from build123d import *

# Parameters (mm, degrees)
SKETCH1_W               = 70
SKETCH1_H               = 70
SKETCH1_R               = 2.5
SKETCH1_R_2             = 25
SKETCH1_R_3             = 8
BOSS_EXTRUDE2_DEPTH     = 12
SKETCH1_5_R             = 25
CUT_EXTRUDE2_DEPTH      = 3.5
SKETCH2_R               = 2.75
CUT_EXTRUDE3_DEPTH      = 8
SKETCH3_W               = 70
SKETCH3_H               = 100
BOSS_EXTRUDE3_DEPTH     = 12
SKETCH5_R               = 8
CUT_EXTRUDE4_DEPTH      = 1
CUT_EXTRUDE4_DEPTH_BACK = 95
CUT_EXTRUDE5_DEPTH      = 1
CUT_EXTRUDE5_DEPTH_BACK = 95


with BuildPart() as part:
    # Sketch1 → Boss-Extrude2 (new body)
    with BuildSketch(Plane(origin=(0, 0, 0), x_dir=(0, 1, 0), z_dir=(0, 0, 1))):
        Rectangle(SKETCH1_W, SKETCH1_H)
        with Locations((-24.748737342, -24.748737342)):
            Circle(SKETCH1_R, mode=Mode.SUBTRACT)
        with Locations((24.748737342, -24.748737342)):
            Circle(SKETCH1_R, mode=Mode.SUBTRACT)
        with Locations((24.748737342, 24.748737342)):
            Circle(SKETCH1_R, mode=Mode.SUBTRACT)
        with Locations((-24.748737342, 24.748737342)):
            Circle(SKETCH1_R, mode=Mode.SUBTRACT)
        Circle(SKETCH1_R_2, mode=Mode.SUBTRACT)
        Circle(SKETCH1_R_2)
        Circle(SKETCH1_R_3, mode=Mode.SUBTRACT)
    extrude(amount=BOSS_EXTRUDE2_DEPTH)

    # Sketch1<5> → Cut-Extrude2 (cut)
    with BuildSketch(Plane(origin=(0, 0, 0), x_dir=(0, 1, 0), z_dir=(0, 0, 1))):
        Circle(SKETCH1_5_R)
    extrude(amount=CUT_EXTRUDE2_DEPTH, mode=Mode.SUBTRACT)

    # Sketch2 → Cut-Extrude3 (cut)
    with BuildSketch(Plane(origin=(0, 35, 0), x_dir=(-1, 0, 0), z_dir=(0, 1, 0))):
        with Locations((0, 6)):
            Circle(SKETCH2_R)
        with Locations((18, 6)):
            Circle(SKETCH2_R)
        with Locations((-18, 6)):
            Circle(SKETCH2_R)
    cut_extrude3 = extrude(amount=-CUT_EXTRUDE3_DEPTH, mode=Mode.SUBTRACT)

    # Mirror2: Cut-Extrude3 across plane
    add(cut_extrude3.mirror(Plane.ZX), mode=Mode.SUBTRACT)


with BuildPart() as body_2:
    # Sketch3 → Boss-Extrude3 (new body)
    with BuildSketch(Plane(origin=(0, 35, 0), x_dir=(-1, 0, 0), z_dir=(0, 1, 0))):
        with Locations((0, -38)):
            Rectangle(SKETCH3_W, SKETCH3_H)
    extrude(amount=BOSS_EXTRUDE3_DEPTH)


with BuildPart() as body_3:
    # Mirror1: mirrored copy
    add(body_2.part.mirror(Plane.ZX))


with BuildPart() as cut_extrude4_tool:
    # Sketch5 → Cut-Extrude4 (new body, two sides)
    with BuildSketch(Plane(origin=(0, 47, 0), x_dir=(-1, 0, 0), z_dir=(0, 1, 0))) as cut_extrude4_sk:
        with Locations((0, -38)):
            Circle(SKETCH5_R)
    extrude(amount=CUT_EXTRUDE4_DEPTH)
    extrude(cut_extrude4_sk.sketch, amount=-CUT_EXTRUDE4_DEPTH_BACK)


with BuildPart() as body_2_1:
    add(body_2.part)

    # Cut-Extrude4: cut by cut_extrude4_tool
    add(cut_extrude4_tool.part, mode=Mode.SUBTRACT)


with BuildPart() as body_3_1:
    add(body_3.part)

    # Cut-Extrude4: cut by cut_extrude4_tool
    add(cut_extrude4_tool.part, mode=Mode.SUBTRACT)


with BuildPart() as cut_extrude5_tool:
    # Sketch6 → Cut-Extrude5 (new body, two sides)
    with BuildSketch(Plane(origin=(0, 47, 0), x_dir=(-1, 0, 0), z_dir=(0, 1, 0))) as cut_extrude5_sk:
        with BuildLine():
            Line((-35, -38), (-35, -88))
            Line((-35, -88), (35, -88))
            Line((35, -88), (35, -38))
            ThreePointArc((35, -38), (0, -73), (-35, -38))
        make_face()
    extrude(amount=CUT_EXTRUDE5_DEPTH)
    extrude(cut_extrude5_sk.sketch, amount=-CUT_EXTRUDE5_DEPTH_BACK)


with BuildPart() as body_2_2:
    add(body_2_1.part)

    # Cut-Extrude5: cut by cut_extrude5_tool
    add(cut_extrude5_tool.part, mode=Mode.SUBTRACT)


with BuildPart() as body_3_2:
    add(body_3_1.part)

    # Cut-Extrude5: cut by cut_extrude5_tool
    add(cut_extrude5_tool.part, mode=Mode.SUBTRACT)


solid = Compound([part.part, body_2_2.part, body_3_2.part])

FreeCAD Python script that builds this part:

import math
import FreeCAD as App
import Part
import Sketcher

V = App.Vector

doc = App.newDocument("Part")
body = doc.addObject("PartDesign::Body", "Body")

sketch1 = body.newObject("Sketcher::SketchObject", "Sketch")
sketch1.AttachmentSupport = (doc.getObject("XY_Plane"), [""])
sketch1.MapMode = "FlatFace"
sketch1.addGeometry([
    Part.LineSegment(V(-35, -35, 0), V(35, -35, 0)),
    Part.LineSegment(V(35, -35, 0), V(35, 35, 0)),
    Part.LineSegment(V(35, 35, 0), V(-35, 35, 0)),
    Part.LineSegment(V(-35, 35, 0), V(-35, -35, 0)),
    Part.Circle(V(24.7, -24.7, 0), V(0, 0, 1), 2.5),
    Part.Circle(V(24.7, 24.7, 0), V(0, 0, 1), 2.5),
    Part.Circle(V(-24.7, -24.7, 0), V(0, 0, 1), 2.5),
    Part.Circle(V(0, 0, 0), V(0, 0, 1), 8),
    Part.Circle(V(-24.7, 24.7, 0), V(0, 0, 1), 2.5),
], False)
sketch1.addConstraint([
    Sketcher.Constraint("Coincident", 0, 2, 1, 1),
    Sketcher.Constraint("Coincident", 1, 2, 2, 1),
    Sketcher.Constraint("Coincident", 2, 2, 3, 1),
    Sketcher.Constraint("Coincident", 3, 2, 0, 1),
    Sketcher.Constraint("Horizontal", 0),
    Sketcher.Constraint("Vertical", 1),
    Sketcher.Constraint("Horizontal", 2),
    Sketcher.Constraint("Vertical", 3),
    Sketcher.Constraint("Coincident", 7, 3, -1, 1),
    Sketcher.Constraint("Equal", 4, 5),
    Sketcher.Constraint("Equal", 5, 6),
    Sketcher.Constraint("Equal", 6, 8),
    Sketcher.Constraint("Symmetric", 5, 3, 6, 3, -1, 1),
    Sketcher.Constraint("Symmetric", 4, 3, 8, 3, -1, 1),
    Sketcher.Constraint("Symmetric", 0, 2, 2, 2, -1, 1),
    Sketcher.Constraint("Symmetric", 4, 3, 6, 3, -2),
    Sketcher.Constraint("Equal", 2, 1),
    Sketcher.Constraint("Diameter", 4, 5.0),
    Sketcher.Constraint("Diameter", 7, 16.0),
    Sketcher.Constraint("DistanceX", 0, 1, 0, 2, 70.0),
    Sketcher.Constraint("DistanceX", -1, 1, 4, 3, 24.748737),
    Sketcher.Constraint("DistanceY", 4, 3, -1, 1, 24.748737),
])
pad1 = body.newObject("PartDesign::Pad", "Pad")
pad1.Profile = sketch1
pad1.Length = 12

sketch2 = body.newObject("Sketcher::SketchObject", "Sketch001")
sketch2.AttachmentSupport = (doc.getObject("XY_Plane"), [""])
sketch2.MapMode = "FlatFace"
sketch2.addGeometry(Part.Circle(V(0, 0, 0), V(0, 0, 1), 25), False)
sketch2.addConstraint([
    Sketcher.Constraint("Coincident", 0, 3, -1, 1),
    Sketcher.Constraint("Diameter", 0, 50.0),
])
pocket1 = body.newObject("PartDesign::Pocket", "Pocket")
pocket1.Profile = sketch2
pocket1.Length = 3.5
pocket1.Reversed = True

sketch3 = body.newObject("Sketcher::SketchObject", "Sketch002")
sketch3.AttachmentSupport = (doc.getObject("XZ_Plane"), [""])
sketch3.MapMode = "FlatFace"
sketch3.AttachmentOffset = App.Placement(V(0, 0, -35), App.Rotation())
sketch3.addGeometry([
    Part.Circle(V(0, 6, 0), V(0, 0, 1), 2.8),
    Part.Circle(V(-18, 6, 0), V(0, 0, 1), 2.8),
    Part.Circle(V(18, 6, 0), V(0, 0, 1), 2.8),
], False)
sketch3.addConstraint([
    Sketcher.Constraint("Equal", 0, 1),
    Sketcher.Constraint("Equal", 1, 2),
    Sketcher.Constraint("Symmetric", 1, 3, 2, 3, -2),
    Sketcher.Constraint("PointOnObject", 0, 3, -2),
    Sketcher.Constraint("Horizontal", 0, 3, 1, 3),
    Sketcher.Constraint("Diameter", 0, 5.5),
    Sketcher.Constraint("DistanceY", -1, 1, 0, 3, 6.0),
    Sketcher.Constraint("DistanceX", 1, 3, -1, 1, 18.0),
])
pocket2 = body.newObject("PartDesign::Pocket", "Pocket001")
pocket2.Profile = sketch3
pocket2.Length = 8
pocket2.Reversed = True
doc.recompute()

mirrored = body.newObject("PartDesign::Mirrored", "Mirrored")
mirrored.Originals = [pocket2]
mirrored.MirrorPlane = (doc.getObject("XZ_Plane"), [""])
body.Tip = mirrored
body2 = doc.addObject("PartDesign::Body", "Body001")

sketch4 = body2.newObject("Sketcher::SketchObject", "Sketch003")
sketch4.AttachmentSupport = (doc.getObject("XZ_Plane001"), [""])
sketch4.MapMode = "FlatFace"
sketch4.AttachmentOffset = App.Placement(V(0, 0, -35), App.Rotation())
sketch4.addGeometry([
    Part.LineSegment(V(35, 12, 0), V(35, -88, 0)),
    Part.LineSegment(V(35, -88, 0), V(-35, -88, 0)),
    Part.LineSegment(V(-35, -88, 0), V(-35, 12, 0)),
    Part.LineSegment(V(-35, 12, 0), V(35, 12, 0)),
], False)
sketch4.addConstraint([
    Sketcher.Constraint("Coincident", 0, 2, 1, 1),
    Sketcher.Constraint("Coincident", 1, 2, 2, 1),
    Sketcher.Constraint("Coincident", 2, 2, 3, 1),
    Sketcher.Constraint("Coincident", 3, 2, 0, 1),
    Sketcher.Constraint("Vertical", 0),
    Sketcher.Constraint("Horizontal", 1),
    Sketcher.Constraint("Vertical", 2),
    Sketcher.Constraint("Horizontal", 3),
    Sketcher.Constraint("DistanceX", 1, 2, 1, 1, 70.0),
    Sketcher.Constraint("DistanceY", 0, 2, 0, 1, 100.0),
    Sketcher.Constraint("DistanceX", -1, 1, 0, 2, 35.0),
    Sketcher.Constraint("DistanceY", 0, 2, -1, 1, 88.0),
])
pad2 = body2.newObject("PartDesign::Pad", "Pad001")
pad2.Profile = sketch4
pad2.Length = 12
pad2.Reversed = True
body3 = doc.addObject("PartDesign::Body", "Body002")
doc.recompute()

mirroring = doc.addObject("Part::Mirroring", "Mirroring")
mirroring.Source = body2
mirroring.Base = V(0, 0, 0)
mirroring.Normal = V(0, 1, 0)
body3.BaseFeature = mirroring
doc.recompute()
body4 = doc.addObject("PartDesign::Body", "Body003")

sketch5 = body4.newObject("Sketcher::SketchObject", "Sketch004")
sketch5.AttachmentSupport = (doc.getObject("XZ_Plane003"), [""])
sketch5.MapMode = "FlatFace"
sketch5.AttachmentOffset = App.Placement(V(0, 0, -47), App.Rotation())
sketch5.addGeometry(Part.Circle(V(0, -38, 0), V(0, 0, 1), 8), False)
sketch5.addConstraint([
    Sketcher.Constraint("PointOnObject", 0, 3, -2),
    Sketcher.Constraint("Diameter", 0, 16.0),
    Sketcher.Constraint("DistanceY", 0, 3, -1, 1, 38.0),
])
pad3 = body4.newObject("PartDesign::Pad", "Pad002")
pad3.Profile = sketch5
pad3.Type = "TwoLengths"
pad3.Length = 1
pad3.Length2 = 95
pad3.Reversed = True
doc.recompute()

body5 = doc.addObject("PartDesign::Body", "Body004")
body5.BaseFeature = body4
boolean = body2.newObject("PartDesign::Boolean", "Boolean")
boolean.Type = "Cut"
boolean.addObjects([body5])
doc.recompute()

boolean2 = body3.newObject("PartDesign::Boolean", "Boolean001")
boolean2.Type = "Cut"
boolean2.addObjects([body4])
body6 = doc.addObject("PartDesign::Body", "Body005")

sketch6 = body6.newObject("Sketcher::SketchObject", "Sketch005")
sketch6.AttachmentSupport = (doc.getObject("XZ_Plane005"), [""])
sketch6.MapMode = "FlatFace"
sketch6.AttachmentOffset = App.Placement(V(0, 0, -47), App.Rotation())
sketch6.addGeometry([
    Part.LineSegment(V(35, -38, 0), V(35, -88, 0)),
    Part.LineSegment(V(35, -88, 0), V(-35, -88, 0)),
    Part.LineSegment(V(-35, -88, 0), V(-35, -38, 0)),
    Part.ArcOfCircle(Part.Circle(V(0, -38, 0), V(0, 0, 1), 35), math.radians(180), math.radians(360)),
], False)
sketch6.addConstraint([
    Sketcher.Constraint("Coincident", 0, 2, 1, 1),
    Sketcher.Constraint("Coincident", 1, 2, 2, 1),
    Sketcher.Constraint("Tangent", 2, 2, 3, 1),
    Sketcher.Constraint("Tangent", 3, 2, 0, 1),
    Sketcher.Constraint("Vertical", 0),
    Sketcher.Constraint("Horizontal", 1),
    Sketcher.Constraint("Vertical", 2),
    Sketcher.Constraint("PointOnObject", 3, 3, -2),
    Sketcher.Constraint("Radius", 3, 35.0),
    Sketcher.Constraint("DistanceY", 0, 2, 0, 1, 50.0),
    Sketcher.Constraint("DistanceY", 3, 3, -1, 1, 38.0),
])
pad4 = body6.newObject("PartDesign::Pad", "Pad003")
pad4.Profile = sketch6
pad4.Type = "TwoLengths"
pad4.Length = 1
pad4.Length2 = 95
pad4.Reversed = True
doc.recompute()

body7 = doc.addObject("PartDesign::Body", "Body006")
body7.BaseFeature = body6
boolean3 = body2.newObject("PartDesign::Boolean", "Boolean002")
boolean3.Type = "Cut"
boolean3.addObjects([body7])
doc.recompute()

boolean4 = body3.newObject("PartDesign::Boolean", "Boolean003")
boolean4.Type = "Cut"
boolean4.addObjects([body6])
mirroring.Visibility = False

doc.recompute()
